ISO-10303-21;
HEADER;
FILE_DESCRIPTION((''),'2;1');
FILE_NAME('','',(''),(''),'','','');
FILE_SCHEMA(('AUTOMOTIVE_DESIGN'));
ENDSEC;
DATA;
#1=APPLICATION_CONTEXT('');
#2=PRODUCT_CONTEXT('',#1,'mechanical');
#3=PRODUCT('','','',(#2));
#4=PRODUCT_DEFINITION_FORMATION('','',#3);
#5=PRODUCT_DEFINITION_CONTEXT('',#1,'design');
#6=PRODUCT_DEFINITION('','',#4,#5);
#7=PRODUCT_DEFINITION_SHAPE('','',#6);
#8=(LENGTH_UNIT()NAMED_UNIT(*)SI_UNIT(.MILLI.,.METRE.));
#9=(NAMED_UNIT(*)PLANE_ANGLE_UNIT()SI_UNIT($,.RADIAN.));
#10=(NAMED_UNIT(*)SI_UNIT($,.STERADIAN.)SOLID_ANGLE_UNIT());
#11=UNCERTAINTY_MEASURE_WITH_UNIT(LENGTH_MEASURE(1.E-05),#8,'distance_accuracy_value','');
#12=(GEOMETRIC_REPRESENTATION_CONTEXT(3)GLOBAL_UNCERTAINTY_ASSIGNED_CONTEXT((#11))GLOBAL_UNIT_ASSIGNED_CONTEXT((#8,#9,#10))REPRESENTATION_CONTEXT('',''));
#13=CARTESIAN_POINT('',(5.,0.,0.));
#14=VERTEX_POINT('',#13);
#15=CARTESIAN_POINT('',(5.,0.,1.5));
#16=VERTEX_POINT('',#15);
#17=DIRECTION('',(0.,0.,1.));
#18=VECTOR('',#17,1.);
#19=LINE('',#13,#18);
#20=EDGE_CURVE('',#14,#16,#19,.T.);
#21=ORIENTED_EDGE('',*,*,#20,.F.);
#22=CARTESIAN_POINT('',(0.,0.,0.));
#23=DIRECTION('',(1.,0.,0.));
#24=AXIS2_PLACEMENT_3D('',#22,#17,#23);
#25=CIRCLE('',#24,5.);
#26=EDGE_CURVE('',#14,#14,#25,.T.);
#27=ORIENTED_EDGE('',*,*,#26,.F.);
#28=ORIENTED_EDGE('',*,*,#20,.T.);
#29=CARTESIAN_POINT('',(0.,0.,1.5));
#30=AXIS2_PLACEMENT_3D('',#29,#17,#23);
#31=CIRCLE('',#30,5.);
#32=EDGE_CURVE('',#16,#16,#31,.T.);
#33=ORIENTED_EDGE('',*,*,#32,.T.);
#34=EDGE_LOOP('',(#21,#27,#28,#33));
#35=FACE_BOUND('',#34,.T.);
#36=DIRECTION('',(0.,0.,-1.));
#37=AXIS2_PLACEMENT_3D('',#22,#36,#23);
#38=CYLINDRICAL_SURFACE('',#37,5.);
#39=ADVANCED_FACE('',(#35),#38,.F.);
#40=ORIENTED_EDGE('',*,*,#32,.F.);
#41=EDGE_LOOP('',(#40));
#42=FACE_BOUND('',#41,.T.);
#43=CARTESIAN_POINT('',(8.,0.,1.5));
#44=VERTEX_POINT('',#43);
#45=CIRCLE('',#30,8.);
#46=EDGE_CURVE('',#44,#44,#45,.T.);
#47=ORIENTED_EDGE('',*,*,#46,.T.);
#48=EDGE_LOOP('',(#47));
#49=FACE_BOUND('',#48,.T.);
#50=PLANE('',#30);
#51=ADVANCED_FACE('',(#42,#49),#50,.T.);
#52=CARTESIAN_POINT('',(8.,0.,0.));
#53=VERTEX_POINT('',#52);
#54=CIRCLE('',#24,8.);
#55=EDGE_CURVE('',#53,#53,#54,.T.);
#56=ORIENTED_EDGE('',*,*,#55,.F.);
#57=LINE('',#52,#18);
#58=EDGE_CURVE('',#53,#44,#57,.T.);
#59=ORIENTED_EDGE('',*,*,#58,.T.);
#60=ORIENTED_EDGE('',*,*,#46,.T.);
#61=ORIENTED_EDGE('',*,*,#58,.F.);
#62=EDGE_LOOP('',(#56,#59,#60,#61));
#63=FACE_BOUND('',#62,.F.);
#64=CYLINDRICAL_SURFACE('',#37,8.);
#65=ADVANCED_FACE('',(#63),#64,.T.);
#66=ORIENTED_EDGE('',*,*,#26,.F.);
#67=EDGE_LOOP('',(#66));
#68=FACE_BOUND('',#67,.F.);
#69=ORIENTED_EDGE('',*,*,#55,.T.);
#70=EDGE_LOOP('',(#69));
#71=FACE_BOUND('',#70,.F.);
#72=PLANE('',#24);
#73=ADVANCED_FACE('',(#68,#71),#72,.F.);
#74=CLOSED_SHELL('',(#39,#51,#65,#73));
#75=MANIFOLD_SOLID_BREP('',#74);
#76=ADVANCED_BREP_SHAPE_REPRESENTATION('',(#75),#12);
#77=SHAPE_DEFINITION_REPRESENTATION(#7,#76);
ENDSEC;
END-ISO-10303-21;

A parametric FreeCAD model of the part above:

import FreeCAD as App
import Part
import Sketcher

V = App.Vector

doc = App.newDocument("Part")
params = doc.addObject("Spreadsheet::Sheet", "Params")
for row, (alias, value) in enumerate([
    ("sketch1_diameter", "10 mm"),
    ("sketch1_diameter2", "16 mm"),
    ("pad1_length", "1.5 mm"),
], start=1):
    params.set(f"A{row}", alias)
    params.set(f"B{row}", "=" + value)
    params.setAlias(f"B{row}", alias)

body = doc.addObject("PartDesign::Body", "Body")

# Sketch on XY plane
sketch1 = body.newObject("Sketcher::SketchObject", "Sketch")
sketch1.AttachmentSupport = (doc.getObject("XY_Plane"), [""])
sketch1.MapMode = "FlatFace"
sketch1.addGeometry([
    Part.Circle(V(0, 0, 0), V(0, 0, 1), 8),
    Part.Circle(V(0, 0, 0), V(0, 0, 1), 5),
], False)
sketch1.addConstraint([
    Sketcher.Constraint("Coincident", 0, 3, -1, 1),
    Sketcher.Constraint("Coincident", 1, 3, -1, 1),
    Sketcher.Constraint("Diameter", 1, 10.0),
    Sketcher.Constraint("Diameter", 0, 16.0),
])
sketch1.setExpression("Constraints[2]", "Params.sketch1_diameter")
sketch1.setExpression("Constraints[3]", "Params.sketch1_diameter2")
pad1 = body.newObject("PartDesign::Pad", "Pad")
pad1.Profile = sketch1
pad1.setExpression("Length", "Params.pad1_length")

doc.recompute()
